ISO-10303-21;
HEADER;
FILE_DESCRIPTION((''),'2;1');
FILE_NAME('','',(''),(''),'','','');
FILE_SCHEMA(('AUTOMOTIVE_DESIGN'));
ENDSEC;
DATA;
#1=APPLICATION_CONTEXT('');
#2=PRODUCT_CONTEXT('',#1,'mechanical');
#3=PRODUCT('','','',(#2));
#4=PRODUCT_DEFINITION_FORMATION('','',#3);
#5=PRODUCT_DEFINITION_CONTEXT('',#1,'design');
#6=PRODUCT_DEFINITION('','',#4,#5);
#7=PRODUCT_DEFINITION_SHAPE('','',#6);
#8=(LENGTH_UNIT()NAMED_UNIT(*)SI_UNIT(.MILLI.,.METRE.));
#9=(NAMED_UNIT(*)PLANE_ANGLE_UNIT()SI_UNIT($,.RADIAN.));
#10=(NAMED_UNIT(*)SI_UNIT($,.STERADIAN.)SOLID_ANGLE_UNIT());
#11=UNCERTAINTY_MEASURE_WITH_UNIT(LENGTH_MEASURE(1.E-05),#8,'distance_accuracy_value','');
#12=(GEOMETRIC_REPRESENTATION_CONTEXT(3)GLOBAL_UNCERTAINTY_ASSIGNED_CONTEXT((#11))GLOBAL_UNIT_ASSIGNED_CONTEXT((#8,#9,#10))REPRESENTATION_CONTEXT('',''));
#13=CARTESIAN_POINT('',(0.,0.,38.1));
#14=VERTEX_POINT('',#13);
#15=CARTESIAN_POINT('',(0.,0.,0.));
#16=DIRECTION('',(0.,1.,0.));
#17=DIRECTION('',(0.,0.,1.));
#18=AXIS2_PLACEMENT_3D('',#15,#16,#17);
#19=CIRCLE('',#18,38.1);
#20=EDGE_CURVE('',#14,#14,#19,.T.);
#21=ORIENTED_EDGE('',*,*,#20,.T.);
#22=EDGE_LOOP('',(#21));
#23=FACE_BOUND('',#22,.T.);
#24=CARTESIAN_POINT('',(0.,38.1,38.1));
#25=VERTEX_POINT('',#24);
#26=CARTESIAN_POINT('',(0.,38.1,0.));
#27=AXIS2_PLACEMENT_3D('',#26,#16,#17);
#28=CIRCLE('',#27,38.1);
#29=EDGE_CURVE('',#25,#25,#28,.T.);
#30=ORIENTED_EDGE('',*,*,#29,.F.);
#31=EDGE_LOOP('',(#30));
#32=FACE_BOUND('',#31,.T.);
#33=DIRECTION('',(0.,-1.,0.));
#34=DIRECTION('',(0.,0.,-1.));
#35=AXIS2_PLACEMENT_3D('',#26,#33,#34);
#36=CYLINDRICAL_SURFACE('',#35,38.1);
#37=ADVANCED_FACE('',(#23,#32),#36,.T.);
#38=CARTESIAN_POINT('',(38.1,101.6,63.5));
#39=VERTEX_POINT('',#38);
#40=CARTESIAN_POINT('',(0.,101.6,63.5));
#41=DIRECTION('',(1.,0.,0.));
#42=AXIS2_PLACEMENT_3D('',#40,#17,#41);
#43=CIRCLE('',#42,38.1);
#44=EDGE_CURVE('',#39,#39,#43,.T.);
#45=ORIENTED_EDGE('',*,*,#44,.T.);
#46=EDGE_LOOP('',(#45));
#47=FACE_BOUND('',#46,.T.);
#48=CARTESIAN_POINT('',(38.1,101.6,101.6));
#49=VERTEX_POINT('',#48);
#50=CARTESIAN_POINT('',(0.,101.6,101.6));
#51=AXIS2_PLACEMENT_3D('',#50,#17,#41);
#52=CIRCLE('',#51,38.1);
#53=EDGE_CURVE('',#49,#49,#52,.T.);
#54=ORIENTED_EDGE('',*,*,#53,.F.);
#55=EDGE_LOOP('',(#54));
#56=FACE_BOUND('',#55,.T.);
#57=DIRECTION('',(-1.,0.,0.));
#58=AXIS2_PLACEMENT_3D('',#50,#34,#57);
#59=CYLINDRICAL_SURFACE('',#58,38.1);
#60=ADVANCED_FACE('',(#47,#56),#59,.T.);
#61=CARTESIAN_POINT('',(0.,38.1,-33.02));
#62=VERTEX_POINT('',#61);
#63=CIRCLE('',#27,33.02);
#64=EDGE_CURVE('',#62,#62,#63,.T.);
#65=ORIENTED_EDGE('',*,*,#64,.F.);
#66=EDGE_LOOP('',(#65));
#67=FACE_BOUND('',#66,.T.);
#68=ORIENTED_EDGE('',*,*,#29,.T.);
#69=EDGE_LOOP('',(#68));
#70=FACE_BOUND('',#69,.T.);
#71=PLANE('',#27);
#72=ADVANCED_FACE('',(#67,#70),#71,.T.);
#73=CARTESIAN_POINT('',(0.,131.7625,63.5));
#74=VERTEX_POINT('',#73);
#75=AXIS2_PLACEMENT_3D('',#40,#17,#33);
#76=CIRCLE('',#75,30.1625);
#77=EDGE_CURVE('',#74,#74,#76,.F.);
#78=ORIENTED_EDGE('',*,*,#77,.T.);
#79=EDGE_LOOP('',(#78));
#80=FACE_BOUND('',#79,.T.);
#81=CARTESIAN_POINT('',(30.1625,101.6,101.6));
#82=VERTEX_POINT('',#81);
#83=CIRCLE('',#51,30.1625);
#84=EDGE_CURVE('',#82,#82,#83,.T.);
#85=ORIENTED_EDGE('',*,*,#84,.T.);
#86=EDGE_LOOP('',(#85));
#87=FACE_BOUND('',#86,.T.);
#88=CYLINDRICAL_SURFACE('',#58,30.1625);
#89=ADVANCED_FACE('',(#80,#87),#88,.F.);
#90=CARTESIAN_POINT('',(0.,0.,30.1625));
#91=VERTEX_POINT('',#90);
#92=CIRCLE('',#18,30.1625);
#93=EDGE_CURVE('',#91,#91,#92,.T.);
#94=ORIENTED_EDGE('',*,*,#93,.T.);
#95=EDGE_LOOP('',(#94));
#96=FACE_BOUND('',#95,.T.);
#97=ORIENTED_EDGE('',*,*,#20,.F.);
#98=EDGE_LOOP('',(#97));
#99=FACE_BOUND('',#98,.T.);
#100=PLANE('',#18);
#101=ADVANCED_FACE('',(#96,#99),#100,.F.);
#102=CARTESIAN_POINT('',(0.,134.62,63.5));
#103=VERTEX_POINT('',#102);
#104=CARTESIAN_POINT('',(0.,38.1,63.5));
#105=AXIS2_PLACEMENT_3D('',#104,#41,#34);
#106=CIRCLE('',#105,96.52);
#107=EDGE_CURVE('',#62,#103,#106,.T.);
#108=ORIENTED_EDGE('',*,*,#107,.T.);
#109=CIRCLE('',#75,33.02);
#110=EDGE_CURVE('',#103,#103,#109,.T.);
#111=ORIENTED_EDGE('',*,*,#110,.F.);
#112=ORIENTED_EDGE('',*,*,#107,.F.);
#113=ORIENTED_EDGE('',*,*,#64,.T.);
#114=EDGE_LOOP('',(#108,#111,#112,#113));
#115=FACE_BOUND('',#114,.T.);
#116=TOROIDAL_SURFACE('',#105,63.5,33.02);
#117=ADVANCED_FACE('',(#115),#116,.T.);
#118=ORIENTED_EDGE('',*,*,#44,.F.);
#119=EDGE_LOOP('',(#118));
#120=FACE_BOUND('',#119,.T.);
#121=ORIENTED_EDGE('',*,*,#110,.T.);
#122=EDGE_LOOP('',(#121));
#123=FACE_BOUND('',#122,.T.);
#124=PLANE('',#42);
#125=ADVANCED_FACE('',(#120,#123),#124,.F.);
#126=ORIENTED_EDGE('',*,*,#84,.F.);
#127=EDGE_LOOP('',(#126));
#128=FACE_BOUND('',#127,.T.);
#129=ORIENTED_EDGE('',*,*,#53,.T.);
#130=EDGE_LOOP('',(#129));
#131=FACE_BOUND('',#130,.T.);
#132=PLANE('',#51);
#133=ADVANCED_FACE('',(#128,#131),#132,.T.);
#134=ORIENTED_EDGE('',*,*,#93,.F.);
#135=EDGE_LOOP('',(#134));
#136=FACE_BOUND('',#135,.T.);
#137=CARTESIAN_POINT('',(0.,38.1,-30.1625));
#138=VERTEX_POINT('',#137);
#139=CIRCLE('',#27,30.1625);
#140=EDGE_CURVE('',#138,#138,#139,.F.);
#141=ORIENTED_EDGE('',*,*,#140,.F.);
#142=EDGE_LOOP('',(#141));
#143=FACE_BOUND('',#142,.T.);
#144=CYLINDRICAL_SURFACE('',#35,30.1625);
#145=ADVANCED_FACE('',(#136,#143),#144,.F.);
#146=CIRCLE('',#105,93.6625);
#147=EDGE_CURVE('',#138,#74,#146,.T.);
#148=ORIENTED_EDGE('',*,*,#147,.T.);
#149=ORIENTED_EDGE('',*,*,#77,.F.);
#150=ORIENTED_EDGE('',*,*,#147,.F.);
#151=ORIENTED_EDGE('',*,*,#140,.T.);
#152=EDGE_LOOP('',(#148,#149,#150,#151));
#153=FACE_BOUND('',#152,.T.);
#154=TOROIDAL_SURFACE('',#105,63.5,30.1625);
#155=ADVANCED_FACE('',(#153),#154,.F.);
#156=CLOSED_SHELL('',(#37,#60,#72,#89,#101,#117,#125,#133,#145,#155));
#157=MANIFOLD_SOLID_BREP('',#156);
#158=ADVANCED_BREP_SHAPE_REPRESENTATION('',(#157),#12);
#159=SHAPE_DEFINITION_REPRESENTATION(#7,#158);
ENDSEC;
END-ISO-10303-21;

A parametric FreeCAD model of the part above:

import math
import FreeCAD as App
import Part
import Sketcher
from FreeCAD import Vector
Q = App.Units.Quantity

doc = App.newDocument("Part")
body = doc.addObject("PartDesign::Body", "Body")

sketch1 = body.newObject("Sketcher::SketchObject", "Sketch")
sketch1.AttachmentSupport = (doc.getObject("XZ_Plane"), [""])
sketch1.MapMode = "FlatFace"
sketch1.addGeometry(Part.Circle(Vector(0, 0, 0), Vector(0, 0, 1), 38.1), False)
sketch1.addGeometry(Part.Circle(Vector(0, 0, 0), Vector(0, 0, 1), 30.1625), False)
sketch1.addConstraint(Sketcher.Constraint("Coincident", 0, 3, -1, 1))
sketch1.addConstraint(Sketcher.Constraint("Coincident", 1, 3, -1, 1))
sketch1.addConstraint(Sketcher.Constraint("Diameter", 0, Q("3 in")))
sketch1.addConstraint(Sketcher.Constraint("Diameter", 1, Q("2.375 in")))
pad1 = body.newObject("PartDesign::Pad", "Pad")
pad1.Profile = sketch1
pad1.Length = Q("1.5 in")
pad1.Reversed = True
body2 = doc.addObject("PartDesign::Body", "Body001")

sketch2 = body2.newObject("Sketcher::SketchObject", "Sketch001")
sketch2.AttachmentSupport = (doc.getObject("XY_Plane001"), [""])
sketch2.MapMode = "FlatFace"
sketch2.AttachmentOffset = App.Placement(Vector(0, 0, 2.5 * 25.4), App.Rotation())
sketch2.addGeometry(Part.Circle(Vector(0, 101.6, 0), Vector(0, 0, 1), 38.1), False)
sketch2.addGeometry(Part.Circle(Vector(0, 101.6, 0), Vector(0, 0, 1), 30.1625), False)
sketch2.addConstraint(Sketcher.Constraint("Coincident", 1, 3, 0, 3))
sketch2.addConstraint(Sketcher.Constraint("PointOnObject", 0, 3, -2))
sketch2.addConstraint(Sketcher.Constraint("Diameter", 0, Q("3 in")))
sketch2.addConstraint(Sketcher.Constraint("Diameter", 1, Q("2.375 in")))
sketch2.addConstraint(Sketcher.Constraint("DistanceY", -1, 1, 0, 3, Q("4 in")))
pad2 = body2.newObject("PartDesign::Pad", "Pad001")
pad2.Profile = sketch2
pad2.Length = Q("1.5 in")
body.AllowCompound = True
doc.recompute()

boolean = body.newObject("PartDesign::Boolean", "Boolean")
boolean.Type = "Fuse"
boolean.addObjects([body2])

sketch3 = body.newObject("Sketcher::SketchObject", "Sketch002")
sketch3.AttachmentSupport = (doc.getObject("XZ_Plane"), [""])
sketch3.MapMode = "FlatFace"
sketch3.AttachmentOffset = App.Placement(Vector(0, 0, -1.5 * 25.4), App.Rotation())
sketch3.addGeometry(Part.Circle(Vector(0, 0, 0), Vector(0, 0, 1), 33.02), False)
sketch3.addGeometry(Part.Circle(Vector(0, 0, 0), Vector(0, 0, 1), 30.1625), False)
sketch3.addConstraint(Sketcher.Constraint("Coincident", 0, 3, -1, 1))
sketch3.addConstraint(Sketcher.Constraint("Coincident", 1, 3, -1, 1))
sketch3.addConstraint(Sketcher.Constraint("Diameter", 0, Q("2.6 in")))
sketch3.addConstraint(Sketcher.Constraint("Diameter", 1, Q("2.375 in")))

sketch4 = body.newObject("Sketcher::SketchObject", "Sketch003")
sketch4.AttachmentSupport = (doc.getObject("YZ_Plane"), [""])
sketch4.MapMode = "FlatFace"
sketch4.addGeometry(Part.ArcOfCircle(Part.Circle(Vector(38.1, 63.5, 0), Vector(0, 0, 1), 63.5), math.radians(-90), math.radians(0)), False)
sketch4.addConstraint(Sketcher.Constraint("PointOnObject", 0, 1, -1))
sketch4.addConstraint(Sketcher.Constraint("Radius", 0, Q("2.5 in")))
sketch4.addConstraint(Sketcher.Constraint("DistanceX", -1, 1, 0, 2, Q("4 in")))
sketch4.addConstraint(Sketcher.Constraint("DistanceX", -1, 1, 0, 1, Q("1.5 in")))
sketch4.addConstraint(Sketcher.Constraint("DistanceY", -1, 1, 0, 2, Q("2.5 in")))
doc.recompute()

additivepipe = body.newObject("PartDesign::AdditivePipe", "AdditivePipe")
additivepipe.Profile = sketch3
additivepipe.Spine = (sketch4, ["Edge1"])

doc.recompute()
